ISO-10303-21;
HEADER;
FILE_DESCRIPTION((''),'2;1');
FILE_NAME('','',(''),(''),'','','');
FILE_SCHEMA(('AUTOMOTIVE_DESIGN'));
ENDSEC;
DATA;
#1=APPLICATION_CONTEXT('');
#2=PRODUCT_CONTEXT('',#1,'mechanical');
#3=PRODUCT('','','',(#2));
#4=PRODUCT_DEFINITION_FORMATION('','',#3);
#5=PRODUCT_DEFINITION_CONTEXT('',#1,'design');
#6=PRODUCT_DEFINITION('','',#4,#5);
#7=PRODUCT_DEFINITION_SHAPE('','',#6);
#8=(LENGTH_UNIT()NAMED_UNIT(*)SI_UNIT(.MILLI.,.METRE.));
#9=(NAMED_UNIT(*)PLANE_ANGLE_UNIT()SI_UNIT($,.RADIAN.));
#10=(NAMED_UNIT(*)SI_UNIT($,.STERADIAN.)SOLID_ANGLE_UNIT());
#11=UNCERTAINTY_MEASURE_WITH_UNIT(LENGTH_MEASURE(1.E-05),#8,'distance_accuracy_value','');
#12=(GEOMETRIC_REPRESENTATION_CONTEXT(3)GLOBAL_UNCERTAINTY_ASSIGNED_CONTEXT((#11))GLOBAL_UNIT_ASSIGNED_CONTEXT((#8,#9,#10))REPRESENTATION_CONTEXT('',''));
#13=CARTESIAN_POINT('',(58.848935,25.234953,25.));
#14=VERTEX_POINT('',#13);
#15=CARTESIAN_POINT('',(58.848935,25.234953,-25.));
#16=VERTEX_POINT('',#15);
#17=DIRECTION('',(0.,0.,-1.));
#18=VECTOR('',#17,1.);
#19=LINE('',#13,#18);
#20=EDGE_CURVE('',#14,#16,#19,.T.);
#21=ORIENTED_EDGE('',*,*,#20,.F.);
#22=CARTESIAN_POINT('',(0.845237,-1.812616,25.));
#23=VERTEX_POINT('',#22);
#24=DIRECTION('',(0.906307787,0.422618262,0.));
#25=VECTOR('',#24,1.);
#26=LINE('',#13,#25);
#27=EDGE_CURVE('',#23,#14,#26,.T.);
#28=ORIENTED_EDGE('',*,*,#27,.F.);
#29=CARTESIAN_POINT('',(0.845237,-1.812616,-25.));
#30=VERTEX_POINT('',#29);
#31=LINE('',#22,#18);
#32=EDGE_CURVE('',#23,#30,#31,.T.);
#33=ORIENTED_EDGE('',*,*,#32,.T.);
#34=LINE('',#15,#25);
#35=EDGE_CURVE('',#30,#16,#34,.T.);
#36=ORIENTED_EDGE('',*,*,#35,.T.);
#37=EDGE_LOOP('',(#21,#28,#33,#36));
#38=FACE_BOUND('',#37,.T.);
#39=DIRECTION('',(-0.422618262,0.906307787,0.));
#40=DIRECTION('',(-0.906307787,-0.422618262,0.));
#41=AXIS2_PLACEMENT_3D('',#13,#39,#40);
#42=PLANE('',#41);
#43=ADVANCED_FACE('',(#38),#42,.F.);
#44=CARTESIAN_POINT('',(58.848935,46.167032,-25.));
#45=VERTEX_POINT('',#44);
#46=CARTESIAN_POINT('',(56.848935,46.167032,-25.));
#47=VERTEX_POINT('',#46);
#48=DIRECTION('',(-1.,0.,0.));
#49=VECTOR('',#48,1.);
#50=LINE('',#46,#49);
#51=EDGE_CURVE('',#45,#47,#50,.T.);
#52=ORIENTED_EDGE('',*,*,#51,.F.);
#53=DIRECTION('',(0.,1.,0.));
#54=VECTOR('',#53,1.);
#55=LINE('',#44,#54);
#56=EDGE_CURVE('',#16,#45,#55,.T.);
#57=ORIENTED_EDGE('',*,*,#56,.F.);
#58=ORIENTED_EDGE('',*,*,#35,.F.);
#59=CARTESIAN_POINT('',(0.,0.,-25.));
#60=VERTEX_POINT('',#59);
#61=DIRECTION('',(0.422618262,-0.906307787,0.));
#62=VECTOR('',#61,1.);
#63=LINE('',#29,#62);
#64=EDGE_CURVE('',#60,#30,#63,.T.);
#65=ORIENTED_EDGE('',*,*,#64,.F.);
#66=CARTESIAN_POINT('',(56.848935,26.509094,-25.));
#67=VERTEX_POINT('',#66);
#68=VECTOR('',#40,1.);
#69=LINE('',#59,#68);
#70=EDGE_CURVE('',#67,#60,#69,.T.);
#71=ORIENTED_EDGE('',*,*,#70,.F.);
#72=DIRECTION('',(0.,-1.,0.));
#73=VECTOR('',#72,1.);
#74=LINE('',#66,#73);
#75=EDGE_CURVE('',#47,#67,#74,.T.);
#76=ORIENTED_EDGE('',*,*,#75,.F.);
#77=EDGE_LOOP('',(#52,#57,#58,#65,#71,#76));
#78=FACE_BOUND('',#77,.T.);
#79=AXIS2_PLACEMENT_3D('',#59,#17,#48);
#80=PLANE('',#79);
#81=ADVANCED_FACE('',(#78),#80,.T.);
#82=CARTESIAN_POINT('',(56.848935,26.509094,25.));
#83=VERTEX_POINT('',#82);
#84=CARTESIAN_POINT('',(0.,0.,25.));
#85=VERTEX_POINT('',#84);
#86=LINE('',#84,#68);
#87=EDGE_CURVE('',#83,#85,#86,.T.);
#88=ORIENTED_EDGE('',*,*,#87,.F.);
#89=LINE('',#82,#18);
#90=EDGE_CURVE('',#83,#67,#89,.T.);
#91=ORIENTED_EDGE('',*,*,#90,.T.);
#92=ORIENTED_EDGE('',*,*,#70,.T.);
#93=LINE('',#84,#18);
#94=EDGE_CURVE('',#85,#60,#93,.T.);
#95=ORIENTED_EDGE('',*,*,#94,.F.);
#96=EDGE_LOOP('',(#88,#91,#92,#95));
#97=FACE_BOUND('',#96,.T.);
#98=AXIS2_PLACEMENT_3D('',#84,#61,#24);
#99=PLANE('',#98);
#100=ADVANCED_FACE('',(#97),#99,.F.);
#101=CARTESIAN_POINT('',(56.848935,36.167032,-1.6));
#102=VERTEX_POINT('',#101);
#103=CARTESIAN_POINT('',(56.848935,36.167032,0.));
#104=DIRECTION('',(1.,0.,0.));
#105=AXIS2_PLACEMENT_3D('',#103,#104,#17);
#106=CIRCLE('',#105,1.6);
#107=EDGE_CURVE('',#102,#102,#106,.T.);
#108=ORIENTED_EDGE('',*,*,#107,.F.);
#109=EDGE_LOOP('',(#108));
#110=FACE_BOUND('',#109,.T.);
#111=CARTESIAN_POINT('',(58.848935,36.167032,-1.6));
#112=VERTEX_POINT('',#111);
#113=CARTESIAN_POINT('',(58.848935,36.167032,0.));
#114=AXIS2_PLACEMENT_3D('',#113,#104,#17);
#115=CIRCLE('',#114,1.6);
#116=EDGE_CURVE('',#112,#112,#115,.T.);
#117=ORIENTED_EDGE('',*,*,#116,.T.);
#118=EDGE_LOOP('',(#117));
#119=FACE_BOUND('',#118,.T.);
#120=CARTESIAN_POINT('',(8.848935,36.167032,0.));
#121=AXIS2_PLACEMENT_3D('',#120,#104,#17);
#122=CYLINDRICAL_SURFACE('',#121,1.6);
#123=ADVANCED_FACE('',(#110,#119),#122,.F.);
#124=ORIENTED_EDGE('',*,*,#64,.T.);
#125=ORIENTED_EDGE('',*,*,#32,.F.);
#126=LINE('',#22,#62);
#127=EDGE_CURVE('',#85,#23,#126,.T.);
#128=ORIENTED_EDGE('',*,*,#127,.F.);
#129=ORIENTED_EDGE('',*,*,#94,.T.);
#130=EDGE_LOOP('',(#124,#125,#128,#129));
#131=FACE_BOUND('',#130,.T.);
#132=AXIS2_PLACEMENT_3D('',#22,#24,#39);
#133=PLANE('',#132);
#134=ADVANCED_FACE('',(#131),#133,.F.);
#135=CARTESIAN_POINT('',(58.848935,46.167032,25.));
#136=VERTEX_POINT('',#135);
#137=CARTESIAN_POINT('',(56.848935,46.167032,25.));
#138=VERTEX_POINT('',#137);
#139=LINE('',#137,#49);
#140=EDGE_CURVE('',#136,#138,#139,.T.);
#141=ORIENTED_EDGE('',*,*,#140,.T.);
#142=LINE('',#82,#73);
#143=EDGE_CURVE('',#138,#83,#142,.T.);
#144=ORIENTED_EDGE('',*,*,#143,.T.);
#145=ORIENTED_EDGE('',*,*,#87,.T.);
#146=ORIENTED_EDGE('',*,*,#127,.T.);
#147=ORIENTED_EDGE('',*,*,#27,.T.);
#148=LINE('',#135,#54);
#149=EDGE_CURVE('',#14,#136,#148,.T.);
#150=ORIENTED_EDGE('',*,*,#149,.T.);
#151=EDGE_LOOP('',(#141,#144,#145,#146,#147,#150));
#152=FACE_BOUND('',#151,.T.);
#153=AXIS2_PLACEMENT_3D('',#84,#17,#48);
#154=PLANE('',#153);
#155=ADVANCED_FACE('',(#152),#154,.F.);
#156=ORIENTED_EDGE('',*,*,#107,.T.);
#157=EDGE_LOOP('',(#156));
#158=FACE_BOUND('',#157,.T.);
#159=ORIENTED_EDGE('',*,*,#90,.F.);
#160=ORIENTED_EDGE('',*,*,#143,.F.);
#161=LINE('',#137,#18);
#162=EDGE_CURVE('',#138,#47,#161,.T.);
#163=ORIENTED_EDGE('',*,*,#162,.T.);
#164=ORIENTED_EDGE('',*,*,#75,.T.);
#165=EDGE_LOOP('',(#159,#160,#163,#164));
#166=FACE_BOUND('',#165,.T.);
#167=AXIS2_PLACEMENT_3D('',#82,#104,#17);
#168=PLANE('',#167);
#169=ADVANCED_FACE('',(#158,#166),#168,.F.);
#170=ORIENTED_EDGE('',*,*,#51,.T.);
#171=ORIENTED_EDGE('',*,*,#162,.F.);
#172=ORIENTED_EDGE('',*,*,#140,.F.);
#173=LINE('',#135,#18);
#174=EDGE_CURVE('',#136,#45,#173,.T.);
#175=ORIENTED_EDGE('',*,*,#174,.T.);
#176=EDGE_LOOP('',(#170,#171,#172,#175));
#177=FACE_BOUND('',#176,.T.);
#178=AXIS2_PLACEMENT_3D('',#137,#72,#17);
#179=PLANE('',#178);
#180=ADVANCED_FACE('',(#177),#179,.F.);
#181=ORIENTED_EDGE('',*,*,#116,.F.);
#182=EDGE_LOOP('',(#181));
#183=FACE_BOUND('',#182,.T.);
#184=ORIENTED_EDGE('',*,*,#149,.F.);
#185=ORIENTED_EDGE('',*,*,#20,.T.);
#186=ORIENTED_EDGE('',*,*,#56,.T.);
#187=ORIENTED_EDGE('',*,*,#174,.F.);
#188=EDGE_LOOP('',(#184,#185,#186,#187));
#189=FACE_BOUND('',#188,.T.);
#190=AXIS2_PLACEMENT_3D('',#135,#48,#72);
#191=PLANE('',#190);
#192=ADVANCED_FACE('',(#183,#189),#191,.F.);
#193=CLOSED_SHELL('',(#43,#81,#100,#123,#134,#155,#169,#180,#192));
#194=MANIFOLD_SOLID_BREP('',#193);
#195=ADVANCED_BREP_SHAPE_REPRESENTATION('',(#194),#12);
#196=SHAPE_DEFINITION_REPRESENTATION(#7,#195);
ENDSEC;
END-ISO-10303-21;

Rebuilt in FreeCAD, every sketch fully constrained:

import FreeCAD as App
import Part
import Sketcher

V = App.Vector
Q = App.Units.Quantity

doc = App.newDocument("Part")
params = doc.addObject("Spreadsheet::Sheet", "Params")
for row, (alias, value) in enumerate([
    ("sketch1_width", "2 mm"),
    ("sketch1_length", "2 mm"),
    ("sketch1_length2", "64 mm"),
    ("pad1_length", "50 mm"),
    ("sketch2_diameter", "3.2 mm"),
    ("pocket1_length", "50 mm"),
], start=1):
    params.set(f"A{row}", alias)
    params.set(f"B{row}", "=" + value)
    params.setAlias(f"B{row}", alias)

body = doc.addObject("PartDesign::Body", "Body")

sketch1 = body.newObject("Sketcher::SketchObject", "Sketch")
sketch1.AttachmentSupport = (doc.getObject("XY_Plane"), [""])
sketch1.MapMode = "FlatFace"
sketch1.addGeometry([
    Part.LineSegment(V(56.8, 26.5, 0), V(0, 0, 0)),
    Part.LineSegment(V(0, 0, 0), V(0.8, -1.8, 0)),
    Part.LineSegment(V(0.8, -1.8, 0), V(58.8, 25.2, 0)),
    Part.LineSegment(V(58.8, 25.2, 0), V(58.8, 46.2, 0)),
    Part.LineSegment(V(58.8, 46.2, 0), V(56.8, 46.2, 0)),
    Part.LineSegment(V(56.8, 46.2, 0), V(56.8, 26.5, 0)),
], False)
sketch1.addConstraint([
    Sketcher.Constraint("Coincident", 0, 2, 1, 1),
    Sketcher.Constraint("Coincident", 1, 2, 2, 1),
    Sketcher.Constraint("Coincident", 2, 2, 3, 1),
    Sketcher.Constraint("Coincident", 3, 2, 4, 1),
    Sketcher.Constraint("Coincident", 4, 2, 5, 1),
    Sketcher.Constraint("Coincident", 5, 2, 0, 1),
    Sketcher.Constraint("Vertical", 3),
    Sketcher.Constraint("Horizontal", 4),
    Sketcher.Constraint("Vertical", 5),
    Sketcher.Constraint("Coincident", 0, 2, -1, 1),
    Sketcher.Constraint("Perpendicular", 0, 1),
    Sketcher.Constraint("Perpendicular", 1, 2),
    Sketcher.Constraint("DistanceX", 4, 2, 4, 1, Q("2 mm")),
    Sketcher.Constraint("Angle", 0, Q("-155 deg")),
    Sketcher.Constraint("Distance", 1, Q("2 mm")),
    Sketcher.Constraint("Distance", 2, Q("64 mm")),
    Sketcher.Constraint("DistanceY", 3, 1, 3, 2, Q("20.932079 mm")),
])
sketch1.setExpression("Constraints[12]", "Params.sketch1_width")
sketch1.setExpression("Constraints[14]", "Params.sketch1_length")
sketch1.setExpression("Constraints[15]", "Params.sketch1_length2")
pad1 = body.newObject("PartDesign::Pad", "Pad")
pad1.Profile = sketch1
pad1.setExpression("Length", "Params.pad1_length")
pad1.Midplane = True

sketch2 = body.newObject("Sketcher::SketchObject", "Sketch001")
sketch2.AttachmentSupport = (doc.getObject("YZ_Plane"), [""])
sketch2.MapMode = "FlatFace"
sketch2.AttachmentOffset = App.Placement(V(0, 0, 58.848935), App.Rotation())
sketch2.addGeometry(Part.Circle(V(36.2, 0, 0), V(0, 0, 1), 1.6), False)
sketch2.addConstraint([
    Sketcher.Constraint("PointOnObject", 0, 3, -1),
    Sketcher.Constraint("Diameter", 0, Q("3.2 mm")),
    Sketcher.Constraint("DistanceX", -1, 1, 0, 3, Q("36.167032 mm")),
])
sketch2.setExpression("Constraints[1]", "Params.sketch2_diameter")
pocket1 = body.newObject("PartDesign::Pocket", "Pocket")
pocket1.Profile = sketch2
pocket1.setExpression("Length", "Params.pocket1_length")

doc.recompute()
